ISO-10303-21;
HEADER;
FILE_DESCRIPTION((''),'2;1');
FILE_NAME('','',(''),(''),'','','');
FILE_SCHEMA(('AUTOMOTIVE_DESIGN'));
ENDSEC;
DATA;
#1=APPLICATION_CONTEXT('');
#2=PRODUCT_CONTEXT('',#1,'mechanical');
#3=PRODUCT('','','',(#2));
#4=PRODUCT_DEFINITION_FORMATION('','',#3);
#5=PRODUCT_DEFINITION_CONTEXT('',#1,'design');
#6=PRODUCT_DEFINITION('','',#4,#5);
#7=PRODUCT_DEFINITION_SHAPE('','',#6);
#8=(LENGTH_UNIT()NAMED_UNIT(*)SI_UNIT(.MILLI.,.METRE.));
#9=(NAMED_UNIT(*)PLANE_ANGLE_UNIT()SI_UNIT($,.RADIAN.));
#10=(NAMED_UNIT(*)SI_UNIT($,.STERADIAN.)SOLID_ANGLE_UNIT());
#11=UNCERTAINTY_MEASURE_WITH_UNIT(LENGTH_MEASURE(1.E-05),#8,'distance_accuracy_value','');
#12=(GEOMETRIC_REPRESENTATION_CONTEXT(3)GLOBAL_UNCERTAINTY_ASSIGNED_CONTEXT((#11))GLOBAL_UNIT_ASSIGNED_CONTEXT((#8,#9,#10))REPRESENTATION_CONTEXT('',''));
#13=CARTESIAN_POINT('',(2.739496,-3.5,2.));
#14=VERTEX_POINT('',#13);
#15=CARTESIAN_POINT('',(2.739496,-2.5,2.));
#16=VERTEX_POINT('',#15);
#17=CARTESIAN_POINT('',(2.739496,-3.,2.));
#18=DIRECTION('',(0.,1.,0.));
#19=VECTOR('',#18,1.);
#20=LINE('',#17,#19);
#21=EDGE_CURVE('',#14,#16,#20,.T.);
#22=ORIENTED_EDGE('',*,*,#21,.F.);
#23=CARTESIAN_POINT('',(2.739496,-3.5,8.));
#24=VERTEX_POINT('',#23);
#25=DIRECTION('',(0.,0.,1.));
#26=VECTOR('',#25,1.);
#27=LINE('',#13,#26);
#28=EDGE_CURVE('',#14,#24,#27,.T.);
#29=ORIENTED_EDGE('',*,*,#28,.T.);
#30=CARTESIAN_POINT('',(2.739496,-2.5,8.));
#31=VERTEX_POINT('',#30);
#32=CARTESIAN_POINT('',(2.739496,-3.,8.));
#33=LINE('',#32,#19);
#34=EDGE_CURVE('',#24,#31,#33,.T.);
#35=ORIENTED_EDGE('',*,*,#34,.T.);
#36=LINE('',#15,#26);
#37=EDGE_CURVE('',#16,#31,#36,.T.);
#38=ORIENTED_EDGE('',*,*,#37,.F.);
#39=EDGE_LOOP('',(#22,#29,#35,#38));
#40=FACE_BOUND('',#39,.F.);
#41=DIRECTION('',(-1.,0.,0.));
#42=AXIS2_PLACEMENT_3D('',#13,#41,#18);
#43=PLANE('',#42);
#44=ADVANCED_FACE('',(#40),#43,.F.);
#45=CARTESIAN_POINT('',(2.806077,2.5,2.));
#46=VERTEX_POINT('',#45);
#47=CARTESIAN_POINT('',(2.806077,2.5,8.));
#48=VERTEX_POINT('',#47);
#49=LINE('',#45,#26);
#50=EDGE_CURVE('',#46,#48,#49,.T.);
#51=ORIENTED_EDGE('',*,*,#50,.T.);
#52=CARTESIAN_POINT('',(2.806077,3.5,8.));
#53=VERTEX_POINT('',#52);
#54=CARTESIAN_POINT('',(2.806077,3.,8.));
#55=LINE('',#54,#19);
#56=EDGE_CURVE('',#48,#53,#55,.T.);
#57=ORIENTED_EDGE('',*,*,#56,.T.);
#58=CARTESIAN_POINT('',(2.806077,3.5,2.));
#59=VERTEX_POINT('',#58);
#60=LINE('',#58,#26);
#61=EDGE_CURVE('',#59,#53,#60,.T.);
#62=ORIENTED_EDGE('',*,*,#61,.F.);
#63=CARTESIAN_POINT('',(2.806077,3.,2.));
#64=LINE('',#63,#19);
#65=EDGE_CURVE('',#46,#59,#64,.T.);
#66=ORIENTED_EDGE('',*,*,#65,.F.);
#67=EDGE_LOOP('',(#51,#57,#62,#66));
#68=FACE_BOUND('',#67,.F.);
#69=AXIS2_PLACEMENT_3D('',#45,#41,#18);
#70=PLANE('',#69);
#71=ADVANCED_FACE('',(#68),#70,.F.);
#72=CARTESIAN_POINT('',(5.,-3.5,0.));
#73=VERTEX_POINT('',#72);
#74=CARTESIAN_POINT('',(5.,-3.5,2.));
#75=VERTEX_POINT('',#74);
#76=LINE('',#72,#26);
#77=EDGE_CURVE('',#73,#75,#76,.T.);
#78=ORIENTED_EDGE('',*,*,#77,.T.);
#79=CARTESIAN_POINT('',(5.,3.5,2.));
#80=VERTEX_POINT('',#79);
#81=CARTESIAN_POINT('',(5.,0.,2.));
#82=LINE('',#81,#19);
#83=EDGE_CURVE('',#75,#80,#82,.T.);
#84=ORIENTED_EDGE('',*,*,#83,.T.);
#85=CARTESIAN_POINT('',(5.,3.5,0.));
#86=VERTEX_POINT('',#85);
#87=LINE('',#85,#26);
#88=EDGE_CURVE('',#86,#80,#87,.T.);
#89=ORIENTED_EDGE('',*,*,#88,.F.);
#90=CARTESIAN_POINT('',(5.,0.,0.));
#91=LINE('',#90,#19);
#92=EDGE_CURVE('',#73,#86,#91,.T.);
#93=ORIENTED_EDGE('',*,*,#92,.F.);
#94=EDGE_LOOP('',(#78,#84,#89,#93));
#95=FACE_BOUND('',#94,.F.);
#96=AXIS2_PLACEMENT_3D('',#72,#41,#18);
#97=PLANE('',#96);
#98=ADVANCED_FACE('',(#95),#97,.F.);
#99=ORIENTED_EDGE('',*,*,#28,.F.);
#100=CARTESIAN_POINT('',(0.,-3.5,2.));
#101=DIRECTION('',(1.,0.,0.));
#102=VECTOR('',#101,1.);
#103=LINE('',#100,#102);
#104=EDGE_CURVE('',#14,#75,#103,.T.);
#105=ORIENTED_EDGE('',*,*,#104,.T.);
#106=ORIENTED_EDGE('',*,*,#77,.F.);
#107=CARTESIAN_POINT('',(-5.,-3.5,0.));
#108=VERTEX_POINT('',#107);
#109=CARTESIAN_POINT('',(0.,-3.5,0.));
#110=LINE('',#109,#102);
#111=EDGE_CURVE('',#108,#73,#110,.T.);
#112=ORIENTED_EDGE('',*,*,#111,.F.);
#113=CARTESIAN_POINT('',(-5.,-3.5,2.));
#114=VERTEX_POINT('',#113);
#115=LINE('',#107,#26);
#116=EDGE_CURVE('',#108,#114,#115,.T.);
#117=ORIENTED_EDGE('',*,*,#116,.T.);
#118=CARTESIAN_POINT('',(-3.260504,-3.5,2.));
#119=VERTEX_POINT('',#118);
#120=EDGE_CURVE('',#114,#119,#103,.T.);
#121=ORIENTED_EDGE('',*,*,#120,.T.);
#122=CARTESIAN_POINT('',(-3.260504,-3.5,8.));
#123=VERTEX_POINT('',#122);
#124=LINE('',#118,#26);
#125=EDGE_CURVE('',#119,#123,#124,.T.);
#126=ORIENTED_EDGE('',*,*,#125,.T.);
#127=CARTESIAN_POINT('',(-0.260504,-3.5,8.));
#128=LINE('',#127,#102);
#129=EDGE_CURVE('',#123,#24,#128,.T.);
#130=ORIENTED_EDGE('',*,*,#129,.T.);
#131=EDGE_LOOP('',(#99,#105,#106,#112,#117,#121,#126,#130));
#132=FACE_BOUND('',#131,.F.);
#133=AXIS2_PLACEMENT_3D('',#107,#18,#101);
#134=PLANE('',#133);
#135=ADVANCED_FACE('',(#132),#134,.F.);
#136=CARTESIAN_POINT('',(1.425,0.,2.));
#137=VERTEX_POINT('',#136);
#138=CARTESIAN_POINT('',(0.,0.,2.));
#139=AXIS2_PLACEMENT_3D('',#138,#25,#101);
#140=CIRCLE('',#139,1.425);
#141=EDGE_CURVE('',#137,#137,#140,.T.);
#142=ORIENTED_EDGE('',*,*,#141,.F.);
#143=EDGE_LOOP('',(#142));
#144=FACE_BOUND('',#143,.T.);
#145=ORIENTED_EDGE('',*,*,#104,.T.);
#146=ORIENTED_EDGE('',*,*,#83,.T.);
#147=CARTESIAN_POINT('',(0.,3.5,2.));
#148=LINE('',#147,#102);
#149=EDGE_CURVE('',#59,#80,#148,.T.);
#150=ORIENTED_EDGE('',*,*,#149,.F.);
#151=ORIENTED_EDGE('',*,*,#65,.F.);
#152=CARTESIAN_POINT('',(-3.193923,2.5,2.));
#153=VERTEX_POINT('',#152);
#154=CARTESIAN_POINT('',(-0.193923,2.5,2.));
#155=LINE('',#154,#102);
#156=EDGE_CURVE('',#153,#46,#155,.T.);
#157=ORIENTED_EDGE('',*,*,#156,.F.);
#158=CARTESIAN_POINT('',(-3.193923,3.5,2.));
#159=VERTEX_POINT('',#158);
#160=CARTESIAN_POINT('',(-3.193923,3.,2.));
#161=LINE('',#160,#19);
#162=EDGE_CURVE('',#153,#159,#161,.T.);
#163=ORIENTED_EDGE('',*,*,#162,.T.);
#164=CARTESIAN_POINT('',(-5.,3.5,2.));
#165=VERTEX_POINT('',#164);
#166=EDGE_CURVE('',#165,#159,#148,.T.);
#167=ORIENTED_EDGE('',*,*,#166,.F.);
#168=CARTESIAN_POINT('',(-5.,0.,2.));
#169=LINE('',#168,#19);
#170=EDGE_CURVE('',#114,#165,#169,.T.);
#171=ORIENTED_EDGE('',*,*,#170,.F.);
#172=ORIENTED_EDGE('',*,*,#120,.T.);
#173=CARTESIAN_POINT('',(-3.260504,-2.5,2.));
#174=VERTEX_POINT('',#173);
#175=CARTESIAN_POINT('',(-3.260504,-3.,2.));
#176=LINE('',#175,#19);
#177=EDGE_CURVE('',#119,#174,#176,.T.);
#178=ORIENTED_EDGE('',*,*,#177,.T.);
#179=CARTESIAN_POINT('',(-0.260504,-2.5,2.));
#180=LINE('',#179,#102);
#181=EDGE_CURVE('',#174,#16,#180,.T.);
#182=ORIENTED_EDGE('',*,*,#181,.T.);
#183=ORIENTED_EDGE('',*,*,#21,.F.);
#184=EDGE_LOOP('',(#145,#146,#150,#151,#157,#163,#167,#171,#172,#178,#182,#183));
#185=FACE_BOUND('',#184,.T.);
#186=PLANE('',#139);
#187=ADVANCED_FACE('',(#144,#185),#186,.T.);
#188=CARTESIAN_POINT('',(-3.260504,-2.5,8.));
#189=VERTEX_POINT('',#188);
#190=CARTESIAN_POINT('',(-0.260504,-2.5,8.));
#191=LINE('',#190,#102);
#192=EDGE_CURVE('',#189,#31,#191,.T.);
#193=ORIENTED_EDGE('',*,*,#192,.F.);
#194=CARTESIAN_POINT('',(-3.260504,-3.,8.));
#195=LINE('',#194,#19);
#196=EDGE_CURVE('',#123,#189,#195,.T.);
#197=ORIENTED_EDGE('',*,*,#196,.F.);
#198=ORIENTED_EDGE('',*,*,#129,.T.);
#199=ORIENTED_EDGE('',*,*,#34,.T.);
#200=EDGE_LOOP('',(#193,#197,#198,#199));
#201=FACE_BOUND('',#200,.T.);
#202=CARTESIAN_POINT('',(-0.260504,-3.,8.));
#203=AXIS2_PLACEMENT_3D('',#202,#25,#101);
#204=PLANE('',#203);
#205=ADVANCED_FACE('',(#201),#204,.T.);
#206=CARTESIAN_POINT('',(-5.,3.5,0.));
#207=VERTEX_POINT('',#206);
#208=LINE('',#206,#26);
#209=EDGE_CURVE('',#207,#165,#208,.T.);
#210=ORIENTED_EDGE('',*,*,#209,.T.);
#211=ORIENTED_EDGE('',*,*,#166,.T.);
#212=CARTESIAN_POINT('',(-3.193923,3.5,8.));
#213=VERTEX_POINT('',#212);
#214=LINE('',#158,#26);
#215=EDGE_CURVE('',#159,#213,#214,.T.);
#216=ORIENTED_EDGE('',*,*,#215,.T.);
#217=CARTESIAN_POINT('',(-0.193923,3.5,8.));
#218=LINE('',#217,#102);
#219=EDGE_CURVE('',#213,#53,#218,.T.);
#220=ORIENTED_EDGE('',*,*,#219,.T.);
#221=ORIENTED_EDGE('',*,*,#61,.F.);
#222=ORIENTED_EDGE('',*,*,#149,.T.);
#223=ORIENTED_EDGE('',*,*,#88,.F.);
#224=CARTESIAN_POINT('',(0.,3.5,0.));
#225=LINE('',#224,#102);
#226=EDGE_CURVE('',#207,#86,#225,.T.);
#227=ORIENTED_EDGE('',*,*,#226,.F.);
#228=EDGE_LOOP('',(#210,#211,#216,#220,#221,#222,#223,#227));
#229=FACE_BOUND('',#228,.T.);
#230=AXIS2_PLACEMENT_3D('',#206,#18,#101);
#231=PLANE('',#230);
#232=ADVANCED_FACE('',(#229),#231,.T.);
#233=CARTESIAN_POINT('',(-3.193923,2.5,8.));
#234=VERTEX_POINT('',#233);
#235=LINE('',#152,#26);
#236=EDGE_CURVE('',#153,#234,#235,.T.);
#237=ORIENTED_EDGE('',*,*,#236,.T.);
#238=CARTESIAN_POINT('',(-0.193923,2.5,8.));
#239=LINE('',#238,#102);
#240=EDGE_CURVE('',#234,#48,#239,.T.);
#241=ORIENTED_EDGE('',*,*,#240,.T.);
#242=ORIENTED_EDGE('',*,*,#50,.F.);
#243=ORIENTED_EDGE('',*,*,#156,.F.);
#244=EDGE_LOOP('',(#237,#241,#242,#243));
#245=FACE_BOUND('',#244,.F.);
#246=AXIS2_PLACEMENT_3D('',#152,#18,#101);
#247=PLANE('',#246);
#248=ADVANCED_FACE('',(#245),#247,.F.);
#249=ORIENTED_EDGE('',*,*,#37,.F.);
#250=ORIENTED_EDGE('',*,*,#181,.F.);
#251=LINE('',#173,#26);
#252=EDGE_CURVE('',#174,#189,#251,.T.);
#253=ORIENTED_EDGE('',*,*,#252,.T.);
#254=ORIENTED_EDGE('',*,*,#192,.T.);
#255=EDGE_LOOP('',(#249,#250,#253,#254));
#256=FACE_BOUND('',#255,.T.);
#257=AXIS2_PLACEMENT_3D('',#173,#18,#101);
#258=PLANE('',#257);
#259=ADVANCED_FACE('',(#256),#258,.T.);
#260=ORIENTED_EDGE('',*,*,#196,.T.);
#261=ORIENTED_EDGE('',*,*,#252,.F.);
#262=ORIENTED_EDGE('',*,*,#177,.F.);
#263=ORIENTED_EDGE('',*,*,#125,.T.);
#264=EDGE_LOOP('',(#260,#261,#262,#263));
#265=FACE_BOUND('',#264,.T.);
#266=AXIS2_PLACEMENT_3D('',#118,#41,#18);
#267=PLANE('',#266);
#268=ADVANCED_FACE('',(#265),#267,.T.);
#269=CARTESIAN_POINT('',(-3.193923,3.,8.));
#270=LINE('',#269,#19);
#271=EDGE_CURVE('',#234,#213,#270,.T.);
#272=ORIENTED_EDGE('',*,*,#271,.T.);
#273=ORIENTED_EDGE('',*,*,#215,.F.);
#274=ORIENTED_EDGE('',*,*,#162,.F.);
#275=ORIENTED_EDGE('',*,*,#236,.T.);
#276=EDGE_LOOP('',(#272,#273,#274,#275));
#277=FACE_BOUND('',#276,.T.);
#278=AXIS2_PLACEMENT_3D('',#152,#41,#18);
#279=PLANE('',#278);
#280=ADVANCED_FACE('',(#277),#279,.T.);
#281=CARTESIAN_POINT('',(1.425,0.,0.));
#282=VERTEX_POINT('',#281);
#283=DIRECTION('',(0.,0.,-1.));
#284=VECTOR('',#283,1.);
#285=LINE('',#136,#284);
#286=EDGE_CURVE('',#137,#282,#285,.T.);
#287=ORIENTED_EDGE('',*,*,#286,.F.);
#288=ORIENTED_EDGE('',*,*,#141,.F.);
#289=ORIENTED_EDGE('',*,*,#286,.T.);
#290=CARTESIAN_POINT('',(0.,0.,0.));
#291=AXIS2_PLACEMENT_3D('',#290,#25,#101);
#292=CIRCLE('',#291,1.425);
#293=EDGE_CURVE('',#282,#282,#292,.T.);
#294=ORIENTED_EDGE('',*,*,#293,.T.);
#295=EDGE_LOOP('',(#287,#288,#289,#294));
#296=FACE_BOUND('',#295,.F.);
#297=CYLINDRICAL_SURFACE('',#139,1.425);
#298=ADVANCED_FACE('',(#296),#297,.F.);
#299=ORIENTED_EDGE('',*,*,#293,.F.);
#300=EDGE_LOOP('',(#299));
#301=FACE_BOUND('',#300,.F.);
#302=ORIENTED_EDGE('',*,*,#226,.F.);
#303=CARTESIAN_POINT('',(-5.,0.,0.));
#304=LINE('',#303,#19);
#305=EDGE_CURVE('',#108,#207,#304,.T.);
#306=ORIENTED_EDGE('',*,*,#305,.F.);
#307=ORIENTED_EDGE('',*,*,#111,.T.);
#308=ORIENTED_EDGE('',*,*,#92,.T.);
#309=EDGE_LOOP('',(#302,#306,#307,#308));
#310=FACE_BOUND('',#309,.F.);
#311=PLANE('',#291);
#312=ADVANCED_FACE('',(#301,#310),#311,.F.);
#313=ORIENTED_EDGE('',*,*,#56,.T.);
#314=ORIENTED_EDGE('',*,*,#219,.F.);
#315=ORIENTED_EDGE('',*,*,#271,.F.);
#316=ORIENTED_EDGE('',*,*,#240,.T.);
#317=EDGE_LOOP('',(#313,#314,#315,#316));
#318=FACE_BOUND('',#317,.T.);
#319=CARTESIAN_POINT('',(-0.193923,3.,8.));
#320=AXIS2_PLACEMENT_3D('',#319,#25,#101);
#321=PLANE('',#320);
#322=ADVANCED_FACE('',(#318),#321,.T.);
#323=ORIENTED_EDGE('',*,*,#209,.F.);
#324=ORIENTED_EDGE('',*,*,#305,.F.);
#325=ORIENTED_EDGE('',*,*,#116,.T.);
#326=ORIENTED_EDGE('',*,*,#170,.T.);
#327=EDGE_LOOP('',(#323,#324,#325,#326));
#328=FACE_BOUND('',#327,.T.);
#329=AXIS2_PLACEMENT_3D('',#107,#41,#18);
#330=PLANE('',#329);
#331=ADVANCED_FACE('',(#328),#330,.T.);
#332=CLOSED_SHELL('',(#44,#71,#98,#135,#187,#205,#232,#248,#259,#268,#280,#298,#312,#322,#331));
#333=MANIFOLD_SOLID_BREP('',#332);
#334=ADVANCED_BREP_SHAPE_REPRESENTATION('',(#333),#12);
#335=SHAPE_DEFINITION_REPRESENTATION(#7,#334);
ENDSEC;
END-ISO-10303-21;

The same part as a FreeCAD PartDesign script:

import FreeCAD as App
import Part
import Sketcher
from FreeCAD import Vector
Q = App.Units.Quantity


def add_polygon(sketch, points):
    """Adds a closed chain of lines whose ends are joined by coincident constraints."""
    first, n = sketch.GeometryCount, len(points)
    for a, b in zip(points, points[1:] + points[:1]):
        sketch.addGeometry(Part.LineSegment(App.Vector(*a, 0), App.Vector(*b, 0)), False)
    for i in range(n):
        sketch.addConstraint(Sketcher.Constraint("Coincident", first + i, 2, first + (i + 1) % n, 1))

doc = App.newDocument("Part")
params = doc.addObject("Spreadsheet::Sheet", "Params")
for row, (alias, value) in enumerate([
    ("sketch1_width", "10 mm"),
    ("sketch1_height", "7 mm"),
    ("pad1_length", "2 mm"),
    ("sketch2_width", "6 mm"),
    ("sketch2_height", "1 mm"),
    ("pad2_length", "6 mm"),
    ("sketch3_diameter", "2.85 mm"),
    ("pocket1_length", "6 mm"),
], start=1):
    params.set(f"A{row}", alias)
    params.set(f"B{row}", "=" + value)
    params.setAlias(f"B{row}", alias)

body = doc.addObject("PartDesign::Body", "Body")

sketch1 = doc.addObject("Sketcher::SketchObject", "Sketch")
body.addObject(sketch1)
sketch1.AttachmentSupport = (doc.XY_Plane, [""])
sketch1.MapMode = "FlatFace"
add_polygon(sketch1, [(-5, 4), (-5, -4), (5, -4), (5, 4)])
sketch1.addConstraint([
    Sketcher.Constraint("Vertical", 0),
    Sketcher.Constraint("Horizontal", 1),
    Sketcher.Constraint("Vertical", 2),
    Sketcher.Constraint("Horizontal", 3),
    Sketcher.Constraint("Symmetric", 0, 2, 2, 2, -1, 1),
    Sketcher.Constraint("DistanceX", 1, 1, 1, 2, Q("10 mm")),
    Sketcher.Constraint("DistanceY", 0, 2, 0, 1, Q("7 mm")),
])
sketch1.setExpression("Constraints[9]", "Params.sketch1_width")
sketch1.setExpression("Constraints[10]", "Params.sketch1_height")
pad1 = doc.addObject("PartDesign::Pad", "Pad")
body.addObject(pad1)
pad1.Profile = sketch1
pad1.setExpression("Length", "Params.pad1_length")

sketch2 = doc.addObject("Sketcher::SketchObject", "Sketch001")
body.addObject(sketch2)
sketch2.AttachmentSupport = (doc.XY_Plane, [""])
sketch2.MapMode = "FlatFace"
sketch2.AttachmentOffset = App.Placement(Vector(0, 0, 2), App.Rotation())
add_polygon(sketch2, [(-3.2, 3.5), (-3.2, 2.5), (2.8, 2.5), (2.8, 3.5)])
add_polygon(sketch2, [(-3.3, -2.5), (-3.3, -3.5), (2.7, -3.5), (2.7, -2.5)])
sketch2.addConstraint([
    Sketcher.Constraint("Vertical", 0),
    Sketcher.Constraint("Horizontal", 1),
    Sketcher.Constraint("Vertical", 2),
    Sketcher.Constraint("Horizontal", 3),
    Sketcher.Constraint("Vertical", 4),
    Sketcher.Constraint("Horizontal", 5),
    Sketcher.Constraint("Vertical", 6),
    Sketcher.Constraint("Horizontal", 7),
    Sketcher.Constraint("Equal", 3, 5),
    Sketcher.Constraint("Equal", 2, 4),
    Sketcher.Constraint("DistanceX", 1, 1, 1, 2, Q("6 mm")),
    Sketcher.Constraint("DistanceY", 0, 2, 0, 1, Q("1 mm")),
    Sketcher.Constraint("DistanceY", 4, 2, 0, 2, Q("6 mm")),
    Sketcher.Constraint("DistanceY", -1, 1, 0, 2, Q("2.5 mm")),
    Sketcher.Constraint("DistanceX", 4, 2, 0, 2, Q("0.06658 mm")),
    Sketcher.Constraint("DistanceX", 0, 2, -1, 1, Q("3.193923 mm")),
])
sketch2.setExpression("Constraints[18]", "Params.sketch2_width")
sketch2.setExpression("Constraints[19]", "Params.sketch2_height")
pad2 = doc.addObject("PartDesign::Pad", "Pad001")
body.addObject(pad2)
pad2.Profile = sketch2
pad2.setExpression("Length", "Params.pad2_length")

sketch3 = doc.addObject("Sketcher::SketchObject", "Sketch002")
body.addObject(sketch3)
sketch3.AttachmentSupport = (doc.XY_Plane, [""])
sketch3.MapMode = "FlatFace"
sketch3.AttachmentOffset = App.Placement(Vector(0, 0, 2), App.Rotation())
sketch3.addGeometry(Part.Circle(Vector(0, 0, 0), Vector(0, 0, 1), 1.4), False)
sketch3.addConstraint([
    Sketcher.Constraint("Coincident", 0, 3, -1, 1),
    Sketcher.Constraint("Diameter", 0, Q("2.85 mm")),
])
sketch3.setExpression("Constraints[1]", "Params.sketch3_diameter")
pocket1 = doc.addObject("PartDesign::Pocket", "Pocket")
body.addObject(pocket1)
pocket1.Profile = sketch3
pocket1.setExpression("Length", "Params.pocket1_length")

doc.recompute()
